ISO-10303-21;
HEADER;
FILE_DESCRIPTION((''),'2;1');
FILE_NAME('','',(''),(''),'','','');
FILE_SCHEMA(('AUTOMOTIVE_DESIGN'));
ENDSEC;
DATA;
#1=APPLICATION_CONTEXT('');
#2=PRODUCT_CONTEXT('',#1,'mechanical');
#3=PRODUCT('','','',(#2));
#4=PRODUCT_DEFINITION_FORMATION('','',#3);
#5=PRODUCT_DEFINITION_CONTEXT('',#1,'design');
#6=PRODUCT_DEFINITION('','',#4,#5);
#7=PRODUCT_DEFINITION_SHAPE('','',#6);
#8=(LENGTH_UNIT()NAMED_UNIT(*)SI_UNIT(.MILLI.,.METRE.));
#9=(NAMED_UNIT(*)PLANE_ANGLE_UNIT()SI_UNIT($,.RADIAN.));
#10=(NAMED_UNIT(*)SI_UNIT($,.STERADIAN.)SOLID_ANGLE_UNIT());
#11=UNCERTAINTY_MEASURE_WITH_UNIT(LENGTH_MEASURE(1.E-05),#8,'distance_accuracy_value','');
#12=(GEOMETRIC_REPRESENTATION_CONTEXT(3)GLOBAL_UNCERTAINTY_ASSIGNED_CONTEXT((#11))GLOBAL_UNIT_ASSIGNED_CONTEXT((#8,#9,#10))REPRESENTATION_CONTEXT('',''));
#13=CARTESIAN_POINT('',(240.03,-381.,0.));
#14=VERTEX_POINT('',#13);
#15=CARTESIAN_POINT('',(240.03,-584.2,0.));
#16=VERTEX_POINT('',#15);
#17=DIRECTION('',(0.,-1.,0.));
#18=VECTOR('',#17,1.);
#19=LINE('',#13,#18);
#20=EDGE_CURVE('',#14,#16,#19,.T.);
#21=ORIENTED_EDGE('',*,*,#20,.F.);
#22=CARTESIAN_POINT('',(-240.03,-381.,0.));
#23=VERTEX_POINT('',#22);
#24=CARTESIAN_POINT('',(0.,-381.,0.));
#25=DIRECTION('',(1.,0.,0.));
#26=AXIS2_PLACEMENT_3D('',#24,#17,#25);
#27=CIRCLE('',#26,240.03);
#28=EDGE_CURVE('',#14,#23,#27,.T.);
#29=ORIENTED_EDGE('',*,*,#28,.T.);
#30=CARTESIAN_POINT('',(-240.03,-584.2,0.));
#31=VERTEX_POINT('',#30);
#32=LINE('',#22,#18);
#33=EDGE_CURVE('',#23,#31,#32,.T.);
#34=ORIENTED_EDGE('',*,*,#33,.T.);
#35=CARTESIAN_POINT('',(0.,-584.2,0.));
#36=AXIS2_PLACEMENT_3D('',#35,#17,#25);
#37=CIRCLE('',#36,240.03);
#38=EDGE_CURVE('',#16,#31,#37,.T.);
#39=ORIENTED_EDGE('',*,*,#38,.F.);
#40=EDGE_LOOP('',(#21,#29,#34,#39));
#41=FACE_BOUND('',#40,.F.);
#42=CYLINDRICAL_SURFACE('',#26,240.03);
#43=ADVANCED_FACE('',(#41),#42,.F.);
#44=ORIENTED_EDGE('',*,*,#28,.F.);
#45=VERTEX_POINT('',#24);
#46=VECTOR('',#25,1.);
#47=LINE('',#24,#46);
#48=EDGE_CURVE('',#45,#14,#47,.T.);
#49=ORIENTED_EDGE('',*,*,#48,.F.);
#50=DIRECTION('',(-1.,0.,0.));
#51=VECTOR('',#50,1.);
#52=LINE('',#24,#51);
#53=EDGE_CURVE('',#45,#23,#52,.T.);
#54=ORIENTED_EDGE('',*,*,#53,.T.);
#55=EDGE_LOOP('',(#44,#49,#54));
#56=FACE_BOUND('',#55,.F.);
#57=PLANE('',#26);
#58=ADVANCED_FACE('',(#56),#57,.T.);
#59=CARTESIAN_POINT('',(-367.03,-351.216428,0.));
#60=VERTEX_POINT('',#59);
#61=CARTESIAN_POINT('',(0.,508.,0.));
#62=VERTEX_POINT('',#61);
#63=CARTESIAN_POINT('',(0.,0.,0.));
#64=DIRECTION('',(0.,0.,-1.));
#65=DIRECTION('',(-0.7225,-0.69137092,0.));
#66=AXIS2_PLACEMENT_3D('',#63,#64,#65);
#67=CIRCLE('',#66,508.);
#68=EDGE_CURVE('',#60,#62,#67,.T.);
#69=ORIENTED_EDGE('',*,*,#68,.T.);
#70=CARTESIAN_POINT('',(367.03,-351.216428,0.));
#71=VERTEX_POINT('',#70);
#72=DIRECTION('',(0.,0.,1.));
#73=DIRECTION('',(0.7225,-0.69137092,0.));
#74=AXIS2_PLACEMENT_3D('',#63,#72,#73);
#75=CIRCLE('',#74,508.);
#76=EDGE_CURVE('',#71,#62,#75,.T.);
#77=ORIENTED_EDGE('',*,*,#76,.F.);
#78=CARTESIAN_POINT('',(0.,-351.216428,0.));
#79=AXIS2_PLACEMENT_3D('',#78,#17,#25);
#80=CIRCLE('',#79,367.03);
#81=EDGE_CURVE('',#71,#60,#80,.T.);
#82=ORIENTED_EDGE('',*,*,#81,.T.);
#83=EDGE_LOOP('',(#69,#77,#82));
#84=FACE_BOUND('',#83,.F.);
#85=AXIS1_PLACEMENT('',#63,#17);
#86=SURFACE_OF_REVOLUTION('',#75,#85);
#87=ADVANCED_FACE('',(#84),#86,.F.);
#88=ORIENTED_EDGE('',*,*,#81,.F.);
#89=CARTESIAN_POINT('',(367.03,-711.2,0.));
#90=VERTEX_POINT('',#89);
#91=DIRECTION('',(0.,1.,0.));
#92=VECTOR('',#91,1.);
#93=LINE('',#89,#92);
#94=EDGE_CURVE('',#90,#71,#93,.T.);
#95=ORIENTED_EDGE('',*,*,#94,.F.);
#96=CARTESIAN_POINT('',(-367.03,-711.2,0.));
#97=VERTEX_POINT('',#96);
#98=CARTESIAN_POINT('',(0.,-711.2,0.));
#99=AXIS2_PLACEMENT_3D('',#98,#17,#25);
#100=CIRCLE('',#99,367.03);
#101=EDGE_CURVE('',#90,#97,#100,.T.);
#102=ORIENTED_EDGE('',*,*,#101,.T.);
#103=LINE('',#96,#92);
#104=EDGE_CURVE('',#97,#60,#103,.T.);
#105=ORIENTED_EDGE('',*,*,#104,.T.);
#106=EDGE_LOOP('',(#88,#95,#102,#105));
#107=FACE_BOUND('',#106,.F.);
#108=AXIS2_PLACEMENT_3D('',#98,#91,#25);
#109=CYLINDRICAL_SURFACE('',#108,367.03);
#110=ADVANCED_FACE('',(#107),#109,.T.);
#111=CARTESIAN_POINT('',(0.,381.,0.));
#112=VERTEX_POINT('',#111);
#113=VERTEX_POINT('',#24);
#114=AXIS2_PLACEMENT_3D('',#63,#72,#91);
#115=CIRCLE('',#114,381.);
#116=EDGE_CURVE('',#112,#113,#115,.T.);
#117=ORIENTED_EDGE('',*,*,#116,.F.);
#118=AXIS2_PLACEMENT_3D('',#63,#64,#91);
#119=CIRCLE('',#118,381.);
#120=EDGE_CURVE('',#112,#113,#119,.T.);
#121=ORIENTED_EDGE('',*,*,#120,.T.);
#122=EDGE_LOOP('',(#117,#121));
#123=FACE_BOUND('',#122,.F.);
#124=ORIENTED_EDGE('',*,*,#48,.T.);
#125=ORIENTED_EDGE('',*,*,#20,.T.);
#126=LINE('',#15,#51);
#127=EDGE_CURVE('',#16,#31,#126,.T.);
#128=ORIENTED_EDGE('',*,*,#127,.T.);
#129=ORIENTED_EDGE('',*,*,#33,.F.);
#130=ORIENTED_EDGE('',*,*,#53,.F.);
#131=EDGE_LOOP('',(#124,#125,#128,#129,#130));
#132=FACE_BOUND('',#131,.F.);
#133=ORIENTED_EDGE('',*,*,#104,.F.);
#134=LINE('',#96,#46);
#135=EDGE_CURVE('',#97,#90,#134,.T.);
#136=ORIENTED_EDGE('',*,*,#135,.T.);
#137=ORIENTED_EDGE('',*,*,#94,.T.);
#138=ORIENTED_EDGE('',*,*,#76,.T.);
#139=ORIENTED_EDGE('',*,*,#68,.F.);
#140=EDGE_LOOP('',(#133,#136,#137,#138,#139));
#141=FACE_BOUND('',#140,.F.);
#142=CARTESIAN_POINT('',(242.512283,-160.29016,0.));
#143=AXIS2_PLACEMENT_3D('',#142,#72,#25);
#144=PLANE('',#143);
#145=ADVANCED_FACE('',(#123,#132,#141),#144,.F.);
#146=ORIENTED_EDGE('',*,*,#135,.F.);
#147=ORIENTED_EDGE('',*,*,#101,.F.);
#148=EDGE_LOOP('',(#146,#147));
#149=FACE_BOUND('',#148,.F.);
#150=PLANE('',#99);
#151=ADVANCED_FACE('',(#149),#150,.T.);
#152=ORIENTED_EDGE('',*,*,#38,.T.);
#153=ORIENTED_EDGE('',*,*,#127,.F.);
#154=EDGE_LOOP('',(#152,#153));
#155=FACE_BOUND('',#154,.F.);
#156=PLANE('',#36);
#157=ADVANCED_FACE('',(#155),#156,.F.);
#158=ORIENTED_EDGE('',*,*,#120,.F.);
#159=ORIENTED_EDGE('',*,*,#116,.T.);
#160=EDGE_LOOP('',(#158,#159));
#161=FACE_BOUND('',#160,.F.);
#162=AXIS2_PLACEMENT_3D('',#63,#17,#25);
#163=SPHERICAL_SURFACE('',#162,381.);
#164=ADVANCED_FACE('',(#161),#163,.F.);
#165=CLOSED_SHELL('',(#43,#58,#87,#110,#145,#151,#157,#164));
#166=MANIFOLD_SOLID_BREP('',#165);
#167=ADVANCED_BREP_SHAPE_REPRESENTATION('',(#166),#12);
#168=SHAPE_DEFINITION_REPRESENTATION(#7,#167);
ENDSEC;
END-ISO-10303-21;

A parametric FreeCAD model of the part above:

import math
import FreeCAD as App
import Part
import Sketcher

V = App.Vector
Q = App.Units.Quantity

doc = App.newDocument("Part")
params = doc.addObject("Spreadsheet::Sheet", "Params")
for row, (alias, value) in enumerate([
    ("sketch1_radius", "15 in"),
    ("sketch1_radius2", "20 in"),
    ("sketch1_height", "8 in"),
    ("sketch1_width", "9.45 in"),
    ("revolution_angle", "180 deg"),
], start=1):
    params.set(f"A{row}", alias)
    params.set(f"B{row}", "=" + value)
    params.setAlias(f"B{row}", alias)

body = doc.addObject("PartDesign::Body", "Body")

# Sketch on XY plane
sketch1 = doc.addObject("Sketcher::SketchObject", "Sketch")
body.addObject(sketch1)
sketch1.AttachmentSupport = (doc.XY_Plane, [""])
sketch1.MapMode = "FlatFace"
sketch1.addGeometry([
    Part.ArcOfCircle(Part.Circle(V(0, 0, 0), V(0, 0, 1), 381), math.radians(-90), math.radians(90)),  # 0
    Part.LineSegment(V(0, -381, 0), V(240, -381, 0)),  # 1
    Part.LineSegment(V(240, -381, 0), V(240, -584, 0)),  # 2
    Part.LineSegment(V(240, -584, 0), V(0, -584, 0)),  # 3
    Part.LineSegment(V(0, -584, 0), V(0, -711, 0)),  # 4
    Part.LineSegment(V(0, -711, 0), V(367, -711, 0)),  # 5
    Part.LineSegment(V(367, -711, 0), V(367, -351, 0)),  # 6
    Part.ArcOfCircle(Part.Circle(V(0, 0, 0), V(0, 0, 1), 508), math.radians(-44), math.radians(90)),  # 7
    Part.LineSegment(V(0, 508, 0), V(0, 381, 0)),  # 8
], False)
sketch1.addConstraint([
    Sketcher.Constraint("Tangent", 0, 1, 1, 1),
    Sketcher.Constraint("Coincident", 1, 2, 2, 1),
    Sketcher.Constraint("Coincident", 2, 2, 3, 1),
    Sketcher.Constraint("Coincident", 3, 2, 4, 1),
    Sketcher.Constraint("Coincident", 4, 2, 5, 1),
    Sketcher.Constraint("Coincident", 5, 2, 6, 1),
    Sketcher.Constraint("Coincident", 6, 2, 7, 1),
    Sketcher.Constraint("Coincident", 7, 2, 8, 1),
    Sketcher.Constraint("Coincident", 8, 2, 0, 2),
    Sketcher.Constraint("Horizontal", 1),
    Sketcher.Constraint("Vertical", 2),
    Sketcher.Constraint("Horizontal", 3),
    Sketcher.Constraint("Vertical", 4),
    Sketcher.Constraint("Horizontal", 5),
    Sketcher.Constraint("Vertical", 6),
    Sketcher.Constraint("Vertical", 8),
    Sketcher.Constraint("Coincident", 0, 3, -1, 1),
    Sketcher.Constraint("Coincident", 7, 3, -1, 1),
    Sketcher.Constraint("PointOnObject", 3, 2, -2),
    Sketcher.Constraint("PointOnObject", 8, 2, -2),
    Sketcher.Constraint("Equal", 4, 8),
    Sketcher.Constraint("Radius", 0, Q("15 in")),
    Sketcher.Constraint("Radius", 7, Q("20 in")),
    Sketcher.Constraint("DistanceY", 2, 2, 2, 1, Q("8 in")),
    Sketcher.Constraint("DistanceX", 2, 2, 5, 2, Q("5 in")),
    Sketcher.Constraint("DistanceX", 1, 1, 1, 2, Q("9.45 in")),
])
sketch1.setExpression("Constraints[21]", "Params.sketch1_radius")
sketch1.setExpression("Constraints[22]", "Params.sketch1_radius2")
sketch1.setExpression("Constraints[23]", "Params.sketch1_height")
sketch1.setExpression("Constraints[25]", "Params.sketch1_width")
revolution = doc.addObject("PartDesign::Revolution", "Revolution")
body.addObject(revolution)
revolution.Profile = sketch1
revolution.ReferenceAxis = (sketch1, ["V_Axis"])
revolution.setExpression("Angle", "Params.revolution_angle")
revolution.Reversed = True

doc.recompute()
